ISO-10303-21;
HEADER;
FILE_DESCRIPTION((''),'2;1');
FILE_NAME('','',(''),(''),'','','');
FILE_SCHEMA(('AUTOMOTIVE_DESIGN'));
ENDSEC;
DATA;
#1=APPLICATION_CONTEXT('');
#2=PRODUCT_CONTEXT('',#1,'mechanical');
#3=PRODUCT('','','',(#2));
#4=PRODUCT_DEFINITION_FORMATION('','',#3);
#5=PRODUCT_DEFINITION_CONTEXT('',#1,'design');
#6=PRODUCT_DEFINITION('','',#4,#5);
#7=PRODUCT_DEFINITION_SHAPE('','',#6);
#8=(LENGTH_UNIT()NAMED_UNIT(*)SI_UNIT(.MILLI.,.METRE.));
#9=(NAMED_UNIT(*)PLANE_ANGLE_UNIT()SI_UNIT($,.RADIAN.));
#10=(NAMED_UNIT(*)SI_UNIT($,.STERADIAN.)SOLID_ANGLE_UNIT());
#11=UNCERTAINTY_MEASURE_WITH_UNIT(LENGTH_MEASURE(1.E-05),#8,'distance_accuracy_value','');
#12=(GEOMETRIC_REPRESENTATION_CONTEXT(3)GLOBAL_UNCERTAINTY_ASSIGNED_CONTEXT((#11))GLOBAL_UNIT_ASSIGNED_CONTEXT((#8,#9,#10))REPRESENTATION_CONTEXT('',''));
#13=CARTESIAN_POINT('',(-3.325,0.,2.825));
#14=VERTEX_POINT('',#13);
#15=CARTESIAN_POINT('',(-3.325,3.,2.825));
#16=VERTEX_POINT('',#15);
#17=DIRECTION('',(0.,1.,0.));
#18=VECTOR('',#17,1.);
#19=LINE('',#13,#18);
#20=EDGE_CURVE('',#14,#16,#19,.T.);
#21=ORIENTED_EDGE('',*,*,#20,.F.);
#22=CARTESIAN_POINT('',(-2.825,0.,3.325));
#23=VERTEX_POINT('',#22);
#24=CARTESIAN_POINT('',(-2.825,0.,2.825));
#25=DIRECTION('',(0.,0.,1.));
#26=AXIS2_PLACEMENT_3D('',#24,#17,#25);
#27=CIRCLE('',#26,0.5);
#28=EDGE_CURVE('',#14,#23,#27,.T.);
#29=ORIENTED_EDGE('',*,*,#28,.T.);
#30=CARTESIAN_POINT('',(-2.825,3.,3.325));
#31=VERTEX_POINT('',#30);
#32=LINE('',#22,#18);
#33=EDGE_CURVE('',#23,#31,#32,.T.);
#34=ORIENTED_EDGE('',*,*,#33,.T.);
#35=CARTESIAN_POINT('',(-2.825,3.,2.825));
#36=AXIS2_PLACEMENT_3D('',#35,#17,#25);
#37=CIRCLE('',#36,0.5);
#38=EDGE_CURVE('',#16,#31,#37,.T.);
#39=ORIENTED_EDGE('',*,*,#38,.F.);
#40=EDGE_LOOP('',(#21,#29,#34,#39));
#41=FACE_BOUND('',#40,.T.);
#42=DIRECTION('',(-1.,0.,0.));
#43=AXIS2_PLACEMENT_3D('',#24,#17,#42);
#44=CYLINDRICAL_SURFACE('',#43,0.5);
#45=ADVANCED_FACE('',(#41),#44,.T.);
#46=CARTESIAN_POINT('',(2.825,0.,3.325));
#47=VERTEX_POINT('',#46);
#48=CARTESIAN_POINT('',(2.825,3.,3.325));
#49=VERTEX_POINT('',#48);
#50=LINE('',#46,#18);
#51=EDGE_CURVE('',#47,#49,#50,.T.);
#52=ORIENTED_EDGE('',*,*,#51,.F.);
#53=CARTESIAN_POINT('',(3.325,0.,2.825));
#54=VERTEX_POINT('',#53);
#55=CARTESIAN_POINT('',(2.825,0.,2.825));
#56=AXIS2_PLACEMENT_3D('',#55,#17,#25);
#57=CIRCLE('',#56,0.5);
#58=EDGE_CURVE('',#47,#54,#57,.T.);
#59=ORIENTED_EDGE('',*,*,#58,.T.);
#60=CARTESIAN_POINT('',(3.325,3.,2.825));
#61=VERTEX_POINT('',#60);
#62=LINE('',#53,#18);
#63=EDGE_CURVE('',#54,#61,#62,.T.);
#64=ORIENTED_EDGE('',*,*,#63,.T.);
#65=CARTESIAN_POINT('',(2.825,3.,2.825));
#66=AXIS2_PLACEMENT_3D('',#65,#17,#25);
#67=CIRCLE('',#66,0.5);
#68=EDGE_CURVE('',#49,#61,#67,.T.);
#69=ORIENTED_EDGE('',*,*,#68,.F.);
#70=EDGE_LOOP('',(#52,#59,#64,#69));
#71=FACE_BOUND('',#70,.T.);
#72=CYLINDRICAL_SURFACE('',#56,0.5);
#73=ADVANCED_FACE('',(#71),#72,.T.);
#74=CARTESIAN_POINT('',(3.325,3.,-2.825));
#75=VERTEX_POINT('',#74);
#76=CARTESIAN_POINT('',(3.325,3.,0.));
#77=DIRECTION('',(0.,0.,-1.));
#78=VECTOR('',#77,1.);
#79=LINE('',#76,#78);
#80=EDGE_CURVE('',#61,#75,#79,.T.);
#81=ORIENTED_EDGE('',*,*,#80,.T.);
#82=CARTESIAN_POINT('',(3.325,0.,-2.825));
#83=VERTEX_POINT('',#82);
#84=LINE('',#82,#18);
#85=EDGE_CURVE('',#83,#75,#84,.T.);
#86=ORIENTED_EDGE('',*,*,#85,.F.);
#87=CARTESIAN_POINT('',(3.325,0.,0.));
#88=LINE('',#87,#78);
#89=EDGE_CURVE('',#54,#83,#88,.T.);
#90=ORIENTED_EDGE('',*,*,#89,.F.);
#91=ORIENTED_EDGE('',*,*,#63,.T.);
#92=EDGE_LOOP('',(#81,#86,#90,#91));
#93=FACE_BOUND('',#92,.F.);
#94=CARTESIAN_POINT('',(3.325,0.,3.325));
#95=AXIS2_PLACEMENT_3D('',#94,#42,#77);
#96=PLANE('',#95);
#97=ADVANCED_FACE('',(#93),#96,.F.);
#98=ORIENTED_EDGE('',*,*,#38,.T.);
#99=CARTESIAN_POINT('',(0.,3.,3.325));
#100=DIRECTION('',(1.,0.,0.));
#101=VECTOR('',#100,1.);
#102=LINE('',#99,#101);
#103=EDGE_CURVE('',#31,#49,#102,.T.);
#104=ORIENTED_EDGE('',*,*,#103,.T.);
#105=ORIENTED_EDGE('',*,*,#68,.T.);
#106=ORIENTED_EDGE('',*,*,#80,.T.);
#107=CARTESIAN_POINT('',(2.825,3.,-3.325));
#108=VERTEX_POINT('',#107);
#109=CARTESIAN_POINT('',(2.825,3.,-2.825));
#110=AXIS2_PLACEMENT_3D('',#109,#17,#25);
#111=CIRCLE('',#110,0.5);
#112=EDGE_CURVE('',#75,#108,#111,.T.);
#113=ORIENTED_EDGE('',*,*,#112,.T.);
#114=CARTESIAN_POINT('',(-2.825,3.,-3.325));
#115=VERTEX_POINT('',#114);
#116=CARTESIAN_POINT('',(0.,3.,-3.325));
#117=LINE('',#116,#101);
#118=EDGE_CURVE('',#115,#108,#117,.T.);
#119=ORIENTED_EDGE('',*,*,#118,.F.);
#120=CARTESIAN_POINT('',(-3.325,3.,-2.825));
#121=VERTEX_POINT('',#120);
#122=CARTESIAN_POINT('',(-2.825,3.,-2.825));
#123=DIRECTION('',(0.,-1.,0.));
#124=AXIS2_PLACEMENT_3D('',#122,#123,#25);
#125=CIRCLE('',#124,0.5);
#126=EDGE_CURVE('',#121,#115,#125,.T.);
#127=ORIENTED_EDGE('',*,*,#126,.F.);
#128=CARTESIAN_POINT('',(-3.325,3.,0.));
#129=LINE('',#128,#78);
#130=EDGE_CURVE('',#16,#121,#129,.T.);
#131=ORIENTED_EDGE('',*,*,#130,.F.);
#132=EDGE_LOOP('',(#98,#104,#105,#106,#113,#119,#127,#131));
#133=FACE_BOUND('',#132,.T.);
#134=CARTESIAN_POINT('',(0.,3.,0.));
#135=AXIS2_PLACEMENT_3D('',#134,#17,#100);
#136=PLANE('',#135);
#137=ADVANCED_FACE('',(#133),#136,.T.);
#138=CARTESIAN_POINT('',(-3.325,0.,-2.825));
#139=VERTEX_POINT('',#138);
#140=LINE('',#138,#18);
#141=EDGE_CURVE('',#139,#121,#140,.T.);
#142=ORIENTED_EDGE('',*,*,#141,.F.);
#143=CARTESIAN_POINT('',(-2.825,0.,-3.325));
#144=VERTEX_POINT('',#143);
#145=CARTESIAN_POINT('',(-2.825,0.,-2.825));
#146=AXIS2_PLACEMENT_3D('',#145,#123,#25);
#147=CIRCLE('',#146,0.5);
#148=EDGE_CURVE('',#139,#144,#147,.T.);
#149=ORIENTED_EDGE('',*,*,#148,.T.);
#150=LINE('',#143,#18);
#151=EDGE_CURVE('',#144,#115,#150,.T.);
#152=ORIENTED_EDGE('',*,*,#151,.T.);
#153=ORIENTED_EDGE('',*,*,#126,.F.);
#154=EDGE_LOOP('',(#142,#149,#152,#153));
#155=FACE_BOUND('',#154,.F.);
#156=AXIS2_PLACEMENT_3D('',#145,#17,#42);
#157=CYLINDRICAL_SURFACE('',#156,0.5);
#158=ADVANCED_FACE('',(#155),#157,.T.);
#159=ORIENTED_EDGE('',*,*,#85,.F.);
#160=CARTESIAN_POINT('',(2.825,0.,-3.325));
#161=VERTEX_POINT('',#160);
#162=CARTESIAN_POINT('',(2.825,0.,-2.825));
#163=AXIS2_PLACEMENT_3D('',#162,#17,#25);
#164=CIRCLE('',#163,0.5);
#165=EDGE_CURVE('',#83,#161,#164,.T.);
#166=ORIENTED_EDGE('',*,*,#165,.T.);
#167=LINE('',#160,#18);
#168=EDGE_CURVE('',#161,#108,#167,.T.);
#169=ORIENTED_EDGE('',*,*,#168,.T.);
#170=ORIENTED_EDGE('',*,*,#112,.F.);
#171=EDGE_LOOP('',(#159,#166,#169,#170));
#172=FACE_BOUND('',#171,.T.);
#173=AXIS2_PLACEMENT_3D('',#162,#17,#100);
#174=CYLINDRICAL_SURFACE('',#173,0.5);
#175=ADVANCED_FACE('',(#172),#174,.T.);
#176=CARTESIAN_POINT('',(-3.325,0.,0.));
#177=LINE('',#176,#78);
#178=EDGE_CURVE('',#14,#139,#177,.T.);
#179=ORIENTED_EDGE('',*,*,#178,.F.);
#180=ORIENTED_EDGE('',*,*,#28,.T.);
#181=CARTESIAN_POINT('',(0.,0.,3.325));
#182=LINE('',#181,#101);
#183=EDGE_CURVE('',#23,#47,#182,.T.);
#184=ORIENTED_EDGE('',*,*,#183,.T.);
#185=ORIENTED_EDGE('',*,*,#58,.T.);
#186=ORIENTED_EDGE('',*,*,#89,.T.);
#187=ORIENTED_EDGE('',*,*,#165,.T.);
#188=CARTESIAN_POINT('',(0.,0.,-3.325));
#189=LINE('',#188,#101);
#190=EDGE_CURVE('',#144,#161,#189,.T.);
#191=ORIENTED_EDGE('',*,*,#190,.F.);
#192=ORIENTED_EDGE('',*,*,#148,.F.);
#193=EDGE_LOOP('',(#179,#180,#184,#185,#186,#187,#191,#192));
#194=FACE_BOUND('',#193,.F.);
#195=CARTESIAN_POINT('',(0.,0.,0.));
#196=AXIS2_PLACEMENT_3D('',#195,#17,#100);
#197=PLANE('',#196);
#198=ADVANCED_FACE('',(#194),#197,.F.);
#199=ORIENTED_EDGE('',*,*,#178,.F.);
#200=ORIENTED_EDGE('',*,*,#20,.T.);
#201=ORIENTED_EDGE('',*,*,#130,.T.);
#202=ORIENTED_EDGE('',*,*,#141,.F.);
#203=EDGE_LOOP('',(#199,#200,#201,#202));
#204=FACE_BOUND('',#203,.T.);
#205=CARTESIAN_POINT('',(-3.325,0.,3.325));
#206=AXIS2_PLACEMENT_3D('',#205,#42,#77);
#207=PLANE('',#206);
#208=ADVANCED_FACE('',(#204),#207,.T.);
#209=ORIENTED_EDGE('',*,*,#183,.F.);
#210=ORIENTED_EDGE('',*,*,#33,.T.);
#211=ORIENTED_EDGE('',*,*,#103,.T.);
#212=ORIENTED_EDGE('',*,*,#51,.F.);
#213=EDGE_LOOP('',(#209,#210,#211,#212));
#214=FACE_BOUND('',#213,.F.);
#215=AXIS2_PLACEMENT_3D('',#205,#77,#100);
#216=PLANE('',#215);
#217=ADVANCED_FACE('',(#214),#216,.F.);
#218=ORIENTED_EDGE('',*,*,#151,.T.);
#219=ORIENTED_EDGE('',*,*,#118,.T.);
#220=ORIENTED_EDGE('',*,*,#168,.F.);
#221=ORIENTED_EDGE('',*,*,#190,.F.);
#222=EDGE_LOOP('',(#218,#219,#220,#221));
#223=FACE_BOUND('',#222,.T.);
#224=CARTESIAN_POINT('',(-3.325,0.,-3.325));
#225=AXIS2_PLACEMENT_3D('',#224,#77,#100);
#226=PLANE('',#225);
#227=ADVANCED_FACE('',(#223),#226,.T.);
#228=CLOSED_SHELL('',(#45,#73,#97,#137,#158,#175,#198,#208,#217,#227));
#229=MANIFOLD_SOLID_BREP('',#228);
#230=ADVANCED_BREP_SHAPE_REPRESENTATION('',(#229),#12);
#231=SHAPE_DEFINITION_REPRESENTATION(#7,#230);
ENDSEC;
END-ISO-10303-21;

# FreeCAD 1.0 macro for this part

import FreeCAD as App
import Part
import Sketcher

V = App.Vector


def edges_at(feature, points):
    """Names of the edges that pass closest to the given points."""
    edges = feature.Shape.Edges
    near = lambda p: min(range(len(edges)), key=lambda i: edges[i].distToShape(Part.Vertex(*p))[0])
    return sorted({f"Edge{near(p) + 1}" for p in points})

doc = App.newDocument("Part")
body = doc.addObject("PartDesign::Body", "Body")

# Sketch on XZ plane
sketch1 = body.newObject("Sketcher::SketchObject", "Sketch")
sketch1.AttachmentSupport = (doc.getObject("XZ_Plane"), [""])
sketch1.MapMode = "FlatFace"
sketch1.addGeometry([
    Part.LineSegment(V(-3.325, -3.325, 0), V(-3.325, 3.325, 0)),
    Part.LineSegment(V(-3.325, 3.325, 0), V(3.325, 3.325, 0)),
    Part.LineSegment(V(3.325, 3.325, 0), V(3.325, -3.325, 0)),
    Part.LineSegment(V(3.325, -3.325, 0), V(-3.325, -3.325, 0)),
], False)
sketch1.addConstraint([
    Sketcher.Constraint("Coincident", 0, 2, 1, 1),
    Sketcher.Constraint("Coincident", 1, 2, 2, 1),
    Sketcher.Constraint("Coincident", 2, 2, 3, 1),
    Sketcher.Constraint("Coincident", 3, 2, 0, 1),
    Sketcher.Constraint("Vertical", 0),
    Sketcher.Constraint("Horizontal", 1),
    Sketcher.Constraint("Vertical", 2),
    Sketcher.Constraint("Horizontal", 3),
    Sketcher.Constraint("Symmetric", 0, 2, 2, 2, -1, 1),
    Sketcher.Constraint("Equal", 3, 0),
    Sketcher.Constraint("DistanceX", 1, 1, 1, 2, 6.65),
])
pad1 = body.newObject("PartDesign::Pad", "Pad")
pad1.Profile = sketch1
pad1.Length = 3
pad1.Reversed = True
doc.recompute()

fillet = body.newObject("PartDesign::Fillet", "Fillet")
fillet.Base = (pad1, edges_at(pad1, [
    (3.325, 1.5, 3.325),
    (-3.325, 1.5, 3.325),
    (-3.325, 1.5, -3.325),
    (3.325, 1.5, -3.325),
]))
fillet.Radius = 0.5

doc.recompute()
